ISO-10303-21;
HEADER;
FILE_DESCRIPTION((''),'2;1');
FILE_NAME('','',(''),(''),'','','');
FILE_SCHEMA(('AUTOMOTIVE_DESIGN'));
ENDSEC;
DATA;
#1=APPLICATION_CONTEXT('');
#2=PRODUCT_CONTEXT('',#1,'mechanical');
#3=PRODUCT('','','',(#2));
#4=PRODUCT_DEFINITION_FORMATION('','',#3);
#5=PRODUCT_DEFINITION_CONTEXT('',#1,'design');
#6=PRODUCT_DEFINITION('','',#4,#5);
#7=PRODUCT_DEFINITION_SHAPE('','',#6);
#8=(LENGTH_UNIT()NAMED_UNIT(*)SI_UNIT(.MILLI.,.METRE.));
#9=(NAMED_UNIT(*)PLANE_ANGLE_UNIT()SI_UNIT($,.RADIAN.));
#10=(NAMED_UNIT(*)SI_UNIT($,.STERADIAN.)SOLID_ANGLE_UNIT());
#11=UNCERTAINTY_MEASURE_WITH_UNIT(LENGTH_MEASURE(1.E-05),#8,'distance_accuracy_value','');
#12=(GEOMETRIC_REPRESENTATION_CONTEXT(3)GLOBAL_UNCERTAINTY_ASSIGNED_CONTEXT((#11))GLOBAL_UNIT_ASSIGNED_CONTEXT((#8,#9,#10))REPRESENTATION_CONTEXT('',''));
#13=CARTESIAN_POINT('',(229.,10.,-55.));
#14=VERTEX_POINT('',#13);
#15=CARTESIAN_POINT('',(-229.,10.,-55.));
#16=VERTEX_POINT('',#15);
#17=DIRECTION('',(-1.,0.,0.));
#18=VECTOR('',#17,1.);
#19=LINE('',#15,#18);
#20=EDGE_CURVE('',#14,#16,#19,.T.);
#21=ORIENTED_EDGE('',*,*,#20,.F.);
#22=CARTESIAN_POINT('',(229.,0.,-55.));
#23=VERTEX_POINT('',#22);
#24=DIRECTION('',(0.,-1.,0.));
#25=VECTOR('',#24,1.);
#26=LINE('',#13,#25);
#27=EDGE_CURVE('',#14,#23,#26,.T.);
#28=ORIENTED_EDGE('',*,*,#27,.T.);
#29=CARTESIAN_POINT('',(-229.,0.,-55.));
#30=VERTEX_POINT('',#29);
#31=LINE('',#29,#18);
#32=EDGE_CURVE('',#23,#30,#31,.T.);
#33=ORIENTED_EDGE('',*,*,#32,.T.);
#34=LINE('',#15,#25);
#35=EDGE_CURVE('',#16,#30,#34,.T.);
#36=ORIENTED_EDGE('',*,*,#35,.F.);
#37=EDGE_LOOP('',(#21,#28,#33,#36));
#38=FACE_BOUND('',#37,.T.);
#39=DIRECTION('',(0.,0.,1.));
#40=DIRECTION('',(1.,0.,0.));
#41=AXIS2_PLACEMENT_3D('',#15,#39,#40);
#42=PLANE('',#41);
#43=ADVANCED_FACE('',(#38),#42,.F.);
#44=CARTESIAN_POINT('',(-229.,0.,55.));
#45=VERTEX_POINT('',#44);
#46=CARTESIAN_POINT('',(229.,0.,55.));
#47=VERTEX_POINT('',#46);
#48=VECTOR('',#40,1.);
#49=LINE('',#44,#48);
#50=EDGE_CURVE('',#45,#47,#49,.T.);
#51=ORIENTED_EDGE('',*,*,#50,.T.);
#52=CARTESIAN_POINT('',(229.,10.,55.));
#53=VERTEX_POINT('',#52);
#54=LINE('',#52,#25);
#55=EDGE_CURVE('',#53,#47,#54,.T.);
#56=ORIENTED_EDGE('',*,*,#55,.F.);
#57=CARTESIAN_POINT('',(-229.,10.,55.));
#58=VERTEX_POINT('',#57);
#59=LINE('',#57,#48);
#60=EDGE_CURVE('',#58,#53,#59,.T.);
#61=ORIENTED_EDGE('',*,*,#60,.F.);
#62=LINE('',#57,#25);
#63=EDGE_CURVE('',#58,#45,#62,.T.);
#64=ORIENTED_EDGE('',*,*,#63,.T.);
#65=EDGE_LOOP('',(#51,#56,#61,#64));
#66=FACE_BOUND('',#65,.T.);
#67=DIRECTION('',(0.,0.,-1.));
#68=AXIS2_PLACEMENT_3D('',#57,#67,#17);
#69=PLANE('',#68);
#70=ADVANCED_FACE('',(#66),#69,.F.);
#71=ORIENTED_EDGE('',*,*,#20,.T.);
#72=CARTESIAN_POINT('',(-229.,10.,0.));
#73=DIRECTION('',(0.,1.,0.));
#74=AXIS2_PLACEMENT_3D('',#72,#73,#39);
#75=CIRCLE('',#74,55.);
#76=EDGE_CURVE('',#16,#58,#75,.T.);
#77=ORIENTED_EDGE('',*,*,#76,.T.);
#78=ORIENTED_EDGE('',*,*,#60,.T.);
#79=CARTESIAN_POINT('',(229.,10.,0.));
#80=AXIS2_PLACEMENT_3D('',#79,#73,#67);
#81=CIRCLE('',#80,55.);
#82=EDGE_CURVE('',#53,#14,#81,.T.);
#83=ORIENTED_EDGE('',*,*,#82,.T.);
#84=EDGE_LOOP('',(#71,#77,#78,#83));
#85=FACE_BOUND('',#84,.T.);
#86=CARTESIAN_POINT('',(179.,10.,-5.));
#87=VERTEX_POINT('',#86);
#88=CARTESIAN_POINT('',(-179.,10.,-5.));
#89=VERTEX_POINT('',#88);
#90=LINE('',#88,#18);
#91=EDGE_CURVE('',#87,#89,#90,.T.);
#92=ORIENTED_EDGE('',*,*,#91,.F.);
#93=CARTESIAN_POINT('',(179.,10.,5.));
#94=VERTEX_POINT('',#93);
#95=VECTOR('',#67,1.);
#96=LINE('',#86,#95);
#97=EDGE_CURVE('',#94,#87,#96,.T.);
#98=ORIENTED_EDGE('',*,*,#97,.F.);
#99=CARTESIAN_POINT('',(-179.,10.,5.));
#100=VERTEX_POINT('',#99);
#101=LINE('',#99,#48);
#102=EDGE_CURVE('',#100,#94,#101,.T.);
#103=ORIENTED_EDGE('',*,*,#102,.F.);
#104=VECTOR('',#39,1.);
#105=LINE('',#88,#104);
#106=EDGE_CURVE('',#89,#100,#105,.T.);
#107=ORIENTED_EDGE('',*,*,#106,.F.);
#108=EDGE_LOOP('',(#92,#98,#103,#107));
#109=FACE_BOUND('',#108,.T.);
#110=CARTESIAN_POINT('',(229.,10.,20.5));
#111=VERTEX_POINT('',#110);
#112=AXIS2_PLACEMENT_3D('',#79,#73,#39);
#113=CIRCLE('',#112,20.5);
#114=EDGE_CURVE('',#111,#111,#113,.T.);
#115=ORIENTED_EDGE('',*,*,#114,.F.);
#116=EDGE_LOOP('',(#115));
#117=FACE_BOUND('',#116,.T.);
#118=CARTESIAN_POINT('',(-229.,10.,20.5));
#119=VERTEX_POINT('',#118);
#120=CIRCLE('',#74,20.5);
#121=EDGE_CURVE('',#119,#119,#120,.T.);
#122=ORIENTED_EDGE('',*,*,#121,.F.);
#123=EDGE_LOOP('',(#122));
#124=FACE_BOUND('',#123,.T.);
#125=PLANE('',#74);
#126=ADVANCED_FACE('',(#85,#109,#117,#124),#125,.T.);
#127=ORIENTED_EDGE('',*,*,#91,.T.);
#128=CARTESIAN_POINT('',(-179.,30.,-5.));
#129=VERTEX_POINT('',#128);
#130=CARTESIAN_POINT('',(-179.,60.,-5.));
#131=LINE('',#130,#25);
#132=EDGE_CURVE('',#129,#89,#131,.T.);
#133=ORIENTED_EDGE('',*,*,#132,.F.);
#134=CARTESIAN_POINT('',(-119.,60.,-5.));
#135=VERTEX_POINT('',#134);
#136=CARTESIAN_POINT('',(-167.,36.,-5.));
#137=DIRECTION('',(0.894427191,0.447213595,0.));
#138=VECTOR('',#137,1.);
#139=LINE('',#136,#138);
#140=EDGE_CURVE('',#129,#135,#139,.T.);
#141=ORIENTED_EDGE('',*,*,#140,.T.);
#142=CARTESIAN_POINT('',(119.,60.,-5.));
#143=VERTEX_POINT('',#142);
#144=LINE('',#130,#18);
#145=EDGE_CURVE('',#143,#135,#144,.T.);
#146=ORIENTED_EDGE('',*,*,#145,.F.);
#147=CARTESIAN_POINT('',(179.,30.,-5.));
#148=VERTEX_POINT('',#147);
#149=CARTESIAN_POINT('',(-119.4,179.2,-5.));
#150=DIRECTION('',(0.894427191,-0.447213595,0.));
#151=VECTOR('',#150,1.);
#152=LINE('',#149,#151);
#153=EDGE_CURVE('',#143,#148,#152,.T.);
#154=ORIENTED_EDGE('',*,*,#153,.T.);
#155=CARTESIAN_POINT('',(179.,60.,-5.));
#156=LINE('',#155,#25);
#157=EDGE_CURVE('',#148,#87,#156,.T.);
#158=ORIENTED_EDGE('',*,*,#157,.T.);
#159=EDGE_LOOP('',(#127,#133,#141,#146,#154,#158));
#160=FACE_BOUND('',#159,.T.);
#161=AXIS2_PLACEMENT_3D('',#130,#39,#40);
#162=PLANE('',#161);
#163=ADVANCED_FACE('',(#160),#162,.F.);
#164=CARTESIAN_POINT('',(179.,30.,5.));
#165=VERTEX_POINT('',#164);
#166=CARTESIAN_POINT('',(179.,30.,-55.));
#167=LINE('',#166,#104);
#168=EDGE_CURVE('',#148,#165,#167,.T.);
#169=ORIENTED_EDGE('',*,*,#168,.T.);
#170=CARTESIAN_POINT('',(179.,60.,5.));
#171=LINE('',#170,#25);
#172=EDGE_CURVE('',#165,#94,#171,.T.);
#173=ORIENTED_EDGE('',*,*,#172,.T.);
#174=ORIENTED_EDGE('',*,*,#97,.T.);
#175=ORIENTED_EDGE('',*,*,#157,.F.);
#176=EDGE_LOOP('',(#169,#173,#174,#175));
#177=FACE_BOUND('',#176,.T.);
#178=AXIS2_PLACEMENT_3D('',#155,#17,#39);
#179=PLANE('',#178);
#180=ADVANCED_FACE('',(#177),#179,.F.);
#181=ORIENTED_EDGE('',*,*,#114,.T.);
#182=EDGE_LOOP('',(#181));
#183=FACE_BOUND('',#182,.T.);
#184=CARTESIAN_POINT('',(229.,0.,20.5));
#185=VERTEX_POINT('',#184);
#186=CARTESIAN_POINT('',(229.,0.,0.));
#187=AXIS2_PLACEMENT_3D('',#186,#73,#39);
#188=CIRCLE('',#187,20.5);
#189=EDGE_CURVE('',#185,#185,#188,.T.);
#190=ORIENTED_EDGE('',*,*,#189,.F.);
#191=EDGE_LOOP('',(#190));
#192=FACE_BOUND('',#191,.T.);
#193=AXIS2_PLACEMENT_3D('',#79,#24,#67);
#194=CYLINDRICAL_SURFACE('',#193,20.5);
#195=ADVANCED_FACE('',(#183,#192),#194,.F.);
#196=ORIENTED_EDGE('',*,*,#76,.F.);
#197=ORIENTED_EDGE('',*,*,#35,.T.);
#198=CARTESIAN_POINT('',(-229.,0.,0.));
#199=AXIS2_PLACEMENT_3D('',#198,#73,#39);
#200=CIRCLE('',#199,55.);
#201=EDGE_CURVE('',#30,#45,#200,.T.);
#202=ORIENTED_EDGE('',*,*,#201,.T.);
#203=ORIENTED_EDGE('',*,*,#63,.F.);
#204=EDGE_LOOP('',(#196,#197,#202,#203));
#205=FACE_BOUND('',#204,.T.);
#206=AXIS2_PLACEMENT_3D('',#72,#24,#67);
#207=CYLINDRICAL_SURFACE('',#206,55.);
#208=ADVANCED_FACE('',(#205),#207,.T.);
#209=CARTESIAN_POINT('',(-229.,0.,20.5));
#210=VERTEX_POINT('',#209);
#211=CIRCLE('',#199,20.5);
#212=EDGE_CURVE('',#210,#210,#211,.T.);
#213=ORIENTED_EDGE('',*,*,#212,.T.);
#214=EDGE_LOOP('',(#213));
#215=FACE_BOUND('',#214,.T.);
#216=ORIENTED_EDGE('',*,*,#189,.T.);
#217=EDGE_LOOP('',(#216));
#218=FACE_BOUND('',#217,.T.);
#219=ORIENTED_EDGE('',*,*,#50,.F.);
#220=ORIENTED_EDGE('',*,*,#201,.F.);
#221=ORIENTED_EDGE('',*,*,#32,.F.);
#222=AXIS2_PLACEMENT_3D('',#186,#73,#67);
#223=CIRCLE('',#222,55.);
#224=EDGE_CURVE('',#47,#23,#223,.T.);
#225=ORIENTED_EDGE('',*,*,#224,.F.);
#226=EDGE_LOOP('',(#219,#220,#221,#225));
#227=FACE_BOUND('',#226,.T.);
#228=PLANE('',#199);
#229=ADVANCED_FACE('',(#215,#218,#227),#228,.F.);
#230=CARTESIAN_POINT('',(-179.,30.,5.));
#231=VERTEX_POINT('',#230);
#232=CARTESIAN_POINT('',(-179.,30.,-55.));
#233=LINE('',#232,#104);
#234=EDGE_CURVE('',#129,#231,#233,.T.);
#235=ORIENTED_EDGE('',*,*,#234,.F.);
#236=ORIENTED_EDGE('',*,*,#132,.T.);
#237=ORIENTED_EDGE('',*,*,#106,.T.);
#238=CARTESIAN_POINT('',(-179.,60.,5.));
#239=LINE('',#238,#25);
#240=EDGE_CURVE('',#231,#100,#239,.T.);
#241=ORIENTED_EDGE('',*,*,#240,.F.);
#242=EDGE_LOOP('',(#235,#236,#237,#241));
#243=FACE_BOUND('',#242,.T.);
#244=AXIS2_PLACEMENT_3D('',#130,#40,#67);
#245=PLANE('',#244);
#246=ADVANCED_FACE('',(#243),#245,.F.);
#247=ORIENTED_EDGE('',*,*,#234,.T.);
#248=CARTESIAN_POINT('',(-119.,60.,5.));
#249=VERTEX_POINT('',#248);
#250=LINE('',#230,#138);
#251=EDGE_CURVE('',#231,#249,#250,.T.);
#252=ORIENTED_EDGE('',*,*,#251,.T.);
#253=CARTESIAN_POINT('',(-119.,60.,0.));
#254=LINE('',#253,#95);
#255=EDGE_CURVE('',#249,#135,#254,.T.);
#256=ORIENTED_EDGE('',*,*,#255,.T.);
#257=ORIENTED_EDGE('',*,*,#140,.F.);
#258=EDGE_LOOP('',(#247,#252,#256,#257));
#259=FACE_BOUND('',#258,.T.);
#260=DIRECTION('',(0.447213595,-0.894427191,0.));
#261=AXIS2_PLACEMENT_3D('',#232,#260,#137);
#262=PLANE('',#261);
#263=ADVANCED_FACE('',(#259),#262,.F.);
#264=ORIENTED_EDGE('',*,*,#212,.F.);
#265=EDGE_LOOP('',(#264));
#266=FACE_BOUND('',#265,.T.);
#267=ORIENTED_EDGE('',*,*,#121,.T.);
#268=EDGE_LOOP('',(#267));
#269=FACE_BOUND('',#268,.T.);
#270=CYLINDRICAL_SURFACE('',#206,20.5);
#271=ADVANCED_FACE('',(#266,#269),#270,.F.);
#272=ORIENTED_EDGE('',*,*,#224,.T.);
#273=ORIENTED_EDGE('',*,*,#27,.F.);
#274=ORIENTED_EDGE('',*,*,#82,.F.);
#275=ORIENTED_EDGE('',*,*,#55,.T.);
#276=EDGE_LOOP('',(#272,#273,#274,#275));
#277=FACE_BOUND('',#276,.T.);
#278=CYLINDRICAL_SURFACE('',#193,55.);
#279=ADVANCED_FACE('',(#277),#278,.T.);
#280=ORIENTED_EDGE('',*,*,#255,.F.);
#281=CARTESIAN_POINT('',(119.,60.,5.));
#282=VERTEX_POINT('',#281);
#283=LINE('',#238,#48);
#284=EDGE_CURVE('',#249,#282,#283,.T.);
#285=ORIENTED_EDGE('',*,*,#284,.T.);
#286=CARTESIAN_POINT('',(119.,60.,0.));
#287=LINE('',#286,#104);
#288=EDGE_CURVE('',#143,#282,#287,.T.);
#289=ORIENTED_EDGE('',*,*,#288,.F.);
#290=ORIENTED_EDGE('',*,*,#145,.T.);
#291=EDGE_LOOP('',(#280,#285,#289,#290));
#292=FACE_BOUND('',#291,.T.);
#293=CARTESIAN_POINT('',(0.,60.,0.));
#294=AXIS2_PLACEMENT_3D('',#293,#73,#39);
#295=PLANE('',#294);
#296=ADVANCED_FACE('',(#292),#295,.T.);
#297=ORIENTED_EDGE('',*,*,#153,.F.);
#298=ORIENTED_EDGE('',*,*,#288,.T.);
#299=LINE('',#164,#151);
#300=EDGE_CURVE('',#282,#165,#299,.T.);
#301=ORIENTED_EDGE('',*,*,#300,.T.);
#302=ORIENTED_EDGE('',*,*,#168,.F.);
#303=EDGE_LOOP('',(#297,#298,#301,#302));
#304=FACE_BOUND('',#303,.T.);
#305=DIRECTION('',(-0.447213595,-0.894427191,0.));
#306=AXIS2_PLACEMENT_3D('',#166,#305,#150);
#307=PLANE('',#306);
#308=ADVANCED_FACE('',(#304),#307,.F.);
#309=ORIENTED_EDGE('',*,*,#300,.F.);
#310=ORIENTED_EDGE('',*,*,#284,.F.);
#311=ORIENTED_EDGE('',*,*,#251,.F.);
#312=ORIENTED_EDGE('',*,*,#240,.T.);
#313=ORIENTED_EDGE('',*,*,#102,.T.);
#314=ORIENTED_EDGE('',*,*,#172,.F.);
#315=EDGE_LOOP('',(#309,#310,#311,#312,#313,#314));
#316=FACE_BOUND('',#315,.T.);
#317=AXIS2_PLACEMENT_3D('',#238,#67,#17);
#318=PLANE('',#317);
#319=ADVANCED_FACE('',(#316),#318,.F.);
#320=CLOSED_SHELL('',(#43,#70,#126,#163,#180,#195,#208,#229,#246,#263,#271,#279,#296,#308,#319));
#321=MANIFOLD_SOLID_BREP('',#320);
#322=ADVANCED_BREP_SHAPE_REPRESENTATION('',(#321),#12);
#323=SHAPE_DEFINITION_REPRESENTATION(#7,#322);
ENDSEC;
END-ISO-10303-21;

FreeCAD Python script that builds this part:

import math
import FreeCAD as App
import Part
import Sketcher

V = App.Vector
Q = App.Units.Quantity

doc = App.newDocument("Part")
params = doc.addObject("Spreadsheet::Sheet", "Params")
for row, (alias, value) in enumerate([
    ("sketch1_diameter", "41 mm"),
    ("sketch1_radius", "55 mm"),
    ("sketch1_width", "458 mm"),
    ("pad1_length", "10 mm"),
    ("sketch2_width", "358 mm"),
    ("sketch2_height", "10 mm"),
    ("pad2_length", "50 mm"),
    ("sketch3_width", "60 mm"),
    ("sketch3_height", "30 mm"),
], start=1):
    params.set(f"A{row}", alias)
    params.set(f"B{row}", "=" + value)
    params.setAlias(f"B{row}", alias)

body = doc.addObject("PartDesign::Body", "Body")

sketch1 = doc.addObject("Sketcher::SketchObject", "Sketch")
body.addObject(sketch1)
sketch1.AttachmentSupport = (doc.XZ_Plane, [""])
sketch1.MapMode = "FlatFace"
sketch1.addGeometry(Part.LineSegment(V(229, -55, 0), V(-229, -55, 0)), False)
sketch1.addGeometry(Part.ArcOfCircle(Part.Circle(V(-229, 0, 0), V(0, 0, 1), 55), math.radians(90), math.radians(270)), False)
sketch1.addGeometry(Part.LineSegment(V(-229, 55, 0), V(229, 55, 0)), False)
sketch1.addGeometry(Part.ArcOfCircle(Part.Circle(V(229, 0, 0), V(0, 0, 1), 55), math.radians(-90), math.radians(90)), False)
sketch1.addGeometry(Part.Circle(V(229, 0, 0), V(0, 0, 1), 20), False)
sketch1.addGeometry(Part.Circle(V(-229, 0, 0), V(0, 0, 1), 20), False)
sketch1.addConstraint(Sketcher.Constraint("Tangent", 0, 2, 1, 2))
sketch1.addConstraint(Sketcher.Constraint("Tangent", 1, 1, 2, 1))
sketch1.addConstraint(Sketcher.Constraint("Tangent", 2, 2, 3, 2))
sketch1.addConstraint(Sketcher.Constraint("Tangent", 3, 1, 0, 1))
sketch1.addConstraint(Sketcher.Constraint("Horizontal", 0))
sketch1.addConstraint(Sketcher.Constraint("Horizontal", 2))
sketch1.addConstraint(Sketcher.Constraint("Coincident", 4, 3, 3, 3))
sketch1.addConstraint(Sketcher.Constraint("Coincident", 5, 3, 1, 3))
sketch1.addConstraint(Sketcher.Constraint("Equal", 4, 5))
sketch1.addConstraint(Sketcher.Constraint("Symmetric", 1, 3, 3, 3, -1, 1))
sketch1.addConstraint(Sketcher.Constraint("Diameter", 4, Q("41 mm")))
sketch1.addConstraint(Sketcher.Constraint("Radius", 1, Q("55 mm")))
sketch1.addConstraint(Sketcher.Constraint("DistanceX", 0, 2, 0, 1, Q("458 mm")))
sketch1.setExpression("Constraints[10]", "Params.sketch1_diameter")
sketch1.setExpression("Constraints[11]", "Params.sketch1_radius")
sketch1.setExpression("Constraints[12]", "Params.sketch1_width")
pad1 = doc.addObject("PartDesign::Pad", "Pad")
body.addObject(pad1)
pad1.Profile = sketch1
pad1.setExpression("Length", "Params.pad1_length")
pad1.Reversed = True

sketch2 = doc.addObject("Sketcher::SketchObject", "Sketch001")
body.addObject(sketch2)
sketch2.AttachmentSupport = (doc.XZ_Plane, [""])
sketch2.MapMode = "FlatFace"
sketch2.AttachmentOffset = App.Placement(V(0, 0, -10), App.Rotation())
sketch2.addGeometry(Part.LineSegment(V(-179, -5, 0), V(-179, 5, 0)), False)
sketch2.addGeometry(Part.LineSegment(V(-179, 5, 0), V(179, 5, 0)), False)
sketch2.addGeometry(Part.LineSegment(V(179, 5, 0), V(179, -5, 0)), False)
sketch2.addGeometry(Part.LineSegment(V(179, -5, 0), V(-179, -5, 0)), False)
sketch2.addConstraint(Sketcher.Constraint("Coincident", 0, 2, 1, 1))
sketch2.addConstraint(Sketcher.Constraint("Coincident", 1, 2, 2, 1))
sketch2.addConstraint(Sketcher.Constraint("Coincident", 2, 2, 3, 1))
sketch2.addConstraint(Sketcher.Constraint("Coincident", 3, 2, 0, 1))
sketch2.addConstraint(Sketcher.Constraint("Vertical", 0))
sketch2.addConstraint(Sketcher.Constraint("Horizontal", 1))
sketch2.addConstraint(Sketcher.Constraint("Vertical", 2))
sketch2.addConstraint(Sketcher.Constraint("Horizontal", 3))
sketch2.addConstraint(Sketcher.Constraint("Symmetric", 0, 2, 2, 2, -1, 1))
sketch2.addConstraint(Sketcher.Constraint("DistanceX", 1, 1, 1, 2, Q("358 mm")))
sketch2.addConstraint(Sketcher.Constraint("DistanceY", 0, 1, 0, 2, Q("10 mm")))
sketch2.setExpression("Constraints[9]", "Params.sketch2_width")
sketch2.setExpression("Constraints[10]", "Params.sketch2_height")
pad2 = doc.addObject("PartDesign::Pad", "Pad001")
body.addObject(pad2)
pad2.Profile = sketch2
pad2.setExpression("Length", "Params.pad2_length")
pad2.Reversed = True

sketch3 = doc.addObject("Sketcher::SketchObject", "Sketch002")
body.addObject(sketch3)
sketch3.AttachmentSupport = (doc.XY_Plane, [""])
sketch3.MapMode = "FlatFace"
sketch3.AttachmentOffset = App.Placement(V(0, 0, 5), App.Rotation())
sketch3.addGeometry(Part.LineSegment(V(-179, 60, 0), V(-179, 30, 0)), False)
sketch3.addGeometry(Part.LineSegment(V(-179, 30, 0), V(-119, 60, 0)), False)
sketch3.addGeometry(Part.LineSegment(V(-119, 60, 0), V(-179, 60, 0)), False)
sketch3.addGeometry(Part.LineSegment(V(179, 30, 0), V(179, 60, 0)), False)
sketch3.addGeometry(Part.LineSegment(V(179, 60, 0), V(119, 60, 0)), False)
sketch3.addGeometry(Part.LineSegment(V(119, 60, 0), V(179, 30, 0)), False)
sketch3.addConstraint(Sketcher.Constraint("Coincident", 0, 2, 1, 1))
sketch3.addConstraint(Sketcher.Constraint("Coincident", 1, 2, 2, 1))
sketch3.addConstraint(Sketcher.Constraint("Coincident", 2, 2, 0, 1))
sketch3.addConstraint(Sketcher.Constraint("Coincident", 3, 2, 4, 1))
sketch3.addConstraint(Sketcher.Constraint("Coincident", 4, 2, 5, 1))
sketch3.addConstraint(Sketcher.Constraint("Coincident", 5, 2, 3, 1))
sketch3.addConstraint(Sketcher.Constraint("Vertical", 0))
sketch3.addConstraint(Sketcher.Constraint("Horizontal", 2))
sketch3.addConstraint(Sketcher.Constraint("Vertical", 3))
sketch3.addConstraint(Sketcher.Constraint("Horizontal", 4))
sketch3.addConstraint(Sketcher.Constraint("Symmetric", 2, 2, 3, 2, -2))
sketch3.addConstraint(Sketcher.Constraint("Horizontal", 0, 2, 5, 2))
sketch3.addConstraint(Sketcher.Constraint("Equal", 2, 4))
sketch3.addConstraint(Sketcher.Constraint("DistanceX", 2, 2, 2, 1, Q("60 mm")))
sketch3.addConstraint(Sketcher.Constraint("DistanceY", 0, 2, 0, 1, Q("30 mm")))
sketch3.addConstraint(Sketcher.Constraint("DistanceX", 0, 2, -1, 1, Q("179 mm")))
sketch3.addConstraint(Sketcher.Constraint("DistanceY", -1, 1, 0, 2, Q("30 mm")))
sketch3.setExpression("Constraints[13]", "Params.sketch3_width")
sketch3.setExpression("Constraints[14]", "Params.sketch3_height")
pocket1 = doc.addObject("PartDesign::Pocket", "Pocket")
body.addObject(pocket1)
pocket1.Profile = sketch3
pocket1.Type = "ThroughAll"

doc.recompute()
